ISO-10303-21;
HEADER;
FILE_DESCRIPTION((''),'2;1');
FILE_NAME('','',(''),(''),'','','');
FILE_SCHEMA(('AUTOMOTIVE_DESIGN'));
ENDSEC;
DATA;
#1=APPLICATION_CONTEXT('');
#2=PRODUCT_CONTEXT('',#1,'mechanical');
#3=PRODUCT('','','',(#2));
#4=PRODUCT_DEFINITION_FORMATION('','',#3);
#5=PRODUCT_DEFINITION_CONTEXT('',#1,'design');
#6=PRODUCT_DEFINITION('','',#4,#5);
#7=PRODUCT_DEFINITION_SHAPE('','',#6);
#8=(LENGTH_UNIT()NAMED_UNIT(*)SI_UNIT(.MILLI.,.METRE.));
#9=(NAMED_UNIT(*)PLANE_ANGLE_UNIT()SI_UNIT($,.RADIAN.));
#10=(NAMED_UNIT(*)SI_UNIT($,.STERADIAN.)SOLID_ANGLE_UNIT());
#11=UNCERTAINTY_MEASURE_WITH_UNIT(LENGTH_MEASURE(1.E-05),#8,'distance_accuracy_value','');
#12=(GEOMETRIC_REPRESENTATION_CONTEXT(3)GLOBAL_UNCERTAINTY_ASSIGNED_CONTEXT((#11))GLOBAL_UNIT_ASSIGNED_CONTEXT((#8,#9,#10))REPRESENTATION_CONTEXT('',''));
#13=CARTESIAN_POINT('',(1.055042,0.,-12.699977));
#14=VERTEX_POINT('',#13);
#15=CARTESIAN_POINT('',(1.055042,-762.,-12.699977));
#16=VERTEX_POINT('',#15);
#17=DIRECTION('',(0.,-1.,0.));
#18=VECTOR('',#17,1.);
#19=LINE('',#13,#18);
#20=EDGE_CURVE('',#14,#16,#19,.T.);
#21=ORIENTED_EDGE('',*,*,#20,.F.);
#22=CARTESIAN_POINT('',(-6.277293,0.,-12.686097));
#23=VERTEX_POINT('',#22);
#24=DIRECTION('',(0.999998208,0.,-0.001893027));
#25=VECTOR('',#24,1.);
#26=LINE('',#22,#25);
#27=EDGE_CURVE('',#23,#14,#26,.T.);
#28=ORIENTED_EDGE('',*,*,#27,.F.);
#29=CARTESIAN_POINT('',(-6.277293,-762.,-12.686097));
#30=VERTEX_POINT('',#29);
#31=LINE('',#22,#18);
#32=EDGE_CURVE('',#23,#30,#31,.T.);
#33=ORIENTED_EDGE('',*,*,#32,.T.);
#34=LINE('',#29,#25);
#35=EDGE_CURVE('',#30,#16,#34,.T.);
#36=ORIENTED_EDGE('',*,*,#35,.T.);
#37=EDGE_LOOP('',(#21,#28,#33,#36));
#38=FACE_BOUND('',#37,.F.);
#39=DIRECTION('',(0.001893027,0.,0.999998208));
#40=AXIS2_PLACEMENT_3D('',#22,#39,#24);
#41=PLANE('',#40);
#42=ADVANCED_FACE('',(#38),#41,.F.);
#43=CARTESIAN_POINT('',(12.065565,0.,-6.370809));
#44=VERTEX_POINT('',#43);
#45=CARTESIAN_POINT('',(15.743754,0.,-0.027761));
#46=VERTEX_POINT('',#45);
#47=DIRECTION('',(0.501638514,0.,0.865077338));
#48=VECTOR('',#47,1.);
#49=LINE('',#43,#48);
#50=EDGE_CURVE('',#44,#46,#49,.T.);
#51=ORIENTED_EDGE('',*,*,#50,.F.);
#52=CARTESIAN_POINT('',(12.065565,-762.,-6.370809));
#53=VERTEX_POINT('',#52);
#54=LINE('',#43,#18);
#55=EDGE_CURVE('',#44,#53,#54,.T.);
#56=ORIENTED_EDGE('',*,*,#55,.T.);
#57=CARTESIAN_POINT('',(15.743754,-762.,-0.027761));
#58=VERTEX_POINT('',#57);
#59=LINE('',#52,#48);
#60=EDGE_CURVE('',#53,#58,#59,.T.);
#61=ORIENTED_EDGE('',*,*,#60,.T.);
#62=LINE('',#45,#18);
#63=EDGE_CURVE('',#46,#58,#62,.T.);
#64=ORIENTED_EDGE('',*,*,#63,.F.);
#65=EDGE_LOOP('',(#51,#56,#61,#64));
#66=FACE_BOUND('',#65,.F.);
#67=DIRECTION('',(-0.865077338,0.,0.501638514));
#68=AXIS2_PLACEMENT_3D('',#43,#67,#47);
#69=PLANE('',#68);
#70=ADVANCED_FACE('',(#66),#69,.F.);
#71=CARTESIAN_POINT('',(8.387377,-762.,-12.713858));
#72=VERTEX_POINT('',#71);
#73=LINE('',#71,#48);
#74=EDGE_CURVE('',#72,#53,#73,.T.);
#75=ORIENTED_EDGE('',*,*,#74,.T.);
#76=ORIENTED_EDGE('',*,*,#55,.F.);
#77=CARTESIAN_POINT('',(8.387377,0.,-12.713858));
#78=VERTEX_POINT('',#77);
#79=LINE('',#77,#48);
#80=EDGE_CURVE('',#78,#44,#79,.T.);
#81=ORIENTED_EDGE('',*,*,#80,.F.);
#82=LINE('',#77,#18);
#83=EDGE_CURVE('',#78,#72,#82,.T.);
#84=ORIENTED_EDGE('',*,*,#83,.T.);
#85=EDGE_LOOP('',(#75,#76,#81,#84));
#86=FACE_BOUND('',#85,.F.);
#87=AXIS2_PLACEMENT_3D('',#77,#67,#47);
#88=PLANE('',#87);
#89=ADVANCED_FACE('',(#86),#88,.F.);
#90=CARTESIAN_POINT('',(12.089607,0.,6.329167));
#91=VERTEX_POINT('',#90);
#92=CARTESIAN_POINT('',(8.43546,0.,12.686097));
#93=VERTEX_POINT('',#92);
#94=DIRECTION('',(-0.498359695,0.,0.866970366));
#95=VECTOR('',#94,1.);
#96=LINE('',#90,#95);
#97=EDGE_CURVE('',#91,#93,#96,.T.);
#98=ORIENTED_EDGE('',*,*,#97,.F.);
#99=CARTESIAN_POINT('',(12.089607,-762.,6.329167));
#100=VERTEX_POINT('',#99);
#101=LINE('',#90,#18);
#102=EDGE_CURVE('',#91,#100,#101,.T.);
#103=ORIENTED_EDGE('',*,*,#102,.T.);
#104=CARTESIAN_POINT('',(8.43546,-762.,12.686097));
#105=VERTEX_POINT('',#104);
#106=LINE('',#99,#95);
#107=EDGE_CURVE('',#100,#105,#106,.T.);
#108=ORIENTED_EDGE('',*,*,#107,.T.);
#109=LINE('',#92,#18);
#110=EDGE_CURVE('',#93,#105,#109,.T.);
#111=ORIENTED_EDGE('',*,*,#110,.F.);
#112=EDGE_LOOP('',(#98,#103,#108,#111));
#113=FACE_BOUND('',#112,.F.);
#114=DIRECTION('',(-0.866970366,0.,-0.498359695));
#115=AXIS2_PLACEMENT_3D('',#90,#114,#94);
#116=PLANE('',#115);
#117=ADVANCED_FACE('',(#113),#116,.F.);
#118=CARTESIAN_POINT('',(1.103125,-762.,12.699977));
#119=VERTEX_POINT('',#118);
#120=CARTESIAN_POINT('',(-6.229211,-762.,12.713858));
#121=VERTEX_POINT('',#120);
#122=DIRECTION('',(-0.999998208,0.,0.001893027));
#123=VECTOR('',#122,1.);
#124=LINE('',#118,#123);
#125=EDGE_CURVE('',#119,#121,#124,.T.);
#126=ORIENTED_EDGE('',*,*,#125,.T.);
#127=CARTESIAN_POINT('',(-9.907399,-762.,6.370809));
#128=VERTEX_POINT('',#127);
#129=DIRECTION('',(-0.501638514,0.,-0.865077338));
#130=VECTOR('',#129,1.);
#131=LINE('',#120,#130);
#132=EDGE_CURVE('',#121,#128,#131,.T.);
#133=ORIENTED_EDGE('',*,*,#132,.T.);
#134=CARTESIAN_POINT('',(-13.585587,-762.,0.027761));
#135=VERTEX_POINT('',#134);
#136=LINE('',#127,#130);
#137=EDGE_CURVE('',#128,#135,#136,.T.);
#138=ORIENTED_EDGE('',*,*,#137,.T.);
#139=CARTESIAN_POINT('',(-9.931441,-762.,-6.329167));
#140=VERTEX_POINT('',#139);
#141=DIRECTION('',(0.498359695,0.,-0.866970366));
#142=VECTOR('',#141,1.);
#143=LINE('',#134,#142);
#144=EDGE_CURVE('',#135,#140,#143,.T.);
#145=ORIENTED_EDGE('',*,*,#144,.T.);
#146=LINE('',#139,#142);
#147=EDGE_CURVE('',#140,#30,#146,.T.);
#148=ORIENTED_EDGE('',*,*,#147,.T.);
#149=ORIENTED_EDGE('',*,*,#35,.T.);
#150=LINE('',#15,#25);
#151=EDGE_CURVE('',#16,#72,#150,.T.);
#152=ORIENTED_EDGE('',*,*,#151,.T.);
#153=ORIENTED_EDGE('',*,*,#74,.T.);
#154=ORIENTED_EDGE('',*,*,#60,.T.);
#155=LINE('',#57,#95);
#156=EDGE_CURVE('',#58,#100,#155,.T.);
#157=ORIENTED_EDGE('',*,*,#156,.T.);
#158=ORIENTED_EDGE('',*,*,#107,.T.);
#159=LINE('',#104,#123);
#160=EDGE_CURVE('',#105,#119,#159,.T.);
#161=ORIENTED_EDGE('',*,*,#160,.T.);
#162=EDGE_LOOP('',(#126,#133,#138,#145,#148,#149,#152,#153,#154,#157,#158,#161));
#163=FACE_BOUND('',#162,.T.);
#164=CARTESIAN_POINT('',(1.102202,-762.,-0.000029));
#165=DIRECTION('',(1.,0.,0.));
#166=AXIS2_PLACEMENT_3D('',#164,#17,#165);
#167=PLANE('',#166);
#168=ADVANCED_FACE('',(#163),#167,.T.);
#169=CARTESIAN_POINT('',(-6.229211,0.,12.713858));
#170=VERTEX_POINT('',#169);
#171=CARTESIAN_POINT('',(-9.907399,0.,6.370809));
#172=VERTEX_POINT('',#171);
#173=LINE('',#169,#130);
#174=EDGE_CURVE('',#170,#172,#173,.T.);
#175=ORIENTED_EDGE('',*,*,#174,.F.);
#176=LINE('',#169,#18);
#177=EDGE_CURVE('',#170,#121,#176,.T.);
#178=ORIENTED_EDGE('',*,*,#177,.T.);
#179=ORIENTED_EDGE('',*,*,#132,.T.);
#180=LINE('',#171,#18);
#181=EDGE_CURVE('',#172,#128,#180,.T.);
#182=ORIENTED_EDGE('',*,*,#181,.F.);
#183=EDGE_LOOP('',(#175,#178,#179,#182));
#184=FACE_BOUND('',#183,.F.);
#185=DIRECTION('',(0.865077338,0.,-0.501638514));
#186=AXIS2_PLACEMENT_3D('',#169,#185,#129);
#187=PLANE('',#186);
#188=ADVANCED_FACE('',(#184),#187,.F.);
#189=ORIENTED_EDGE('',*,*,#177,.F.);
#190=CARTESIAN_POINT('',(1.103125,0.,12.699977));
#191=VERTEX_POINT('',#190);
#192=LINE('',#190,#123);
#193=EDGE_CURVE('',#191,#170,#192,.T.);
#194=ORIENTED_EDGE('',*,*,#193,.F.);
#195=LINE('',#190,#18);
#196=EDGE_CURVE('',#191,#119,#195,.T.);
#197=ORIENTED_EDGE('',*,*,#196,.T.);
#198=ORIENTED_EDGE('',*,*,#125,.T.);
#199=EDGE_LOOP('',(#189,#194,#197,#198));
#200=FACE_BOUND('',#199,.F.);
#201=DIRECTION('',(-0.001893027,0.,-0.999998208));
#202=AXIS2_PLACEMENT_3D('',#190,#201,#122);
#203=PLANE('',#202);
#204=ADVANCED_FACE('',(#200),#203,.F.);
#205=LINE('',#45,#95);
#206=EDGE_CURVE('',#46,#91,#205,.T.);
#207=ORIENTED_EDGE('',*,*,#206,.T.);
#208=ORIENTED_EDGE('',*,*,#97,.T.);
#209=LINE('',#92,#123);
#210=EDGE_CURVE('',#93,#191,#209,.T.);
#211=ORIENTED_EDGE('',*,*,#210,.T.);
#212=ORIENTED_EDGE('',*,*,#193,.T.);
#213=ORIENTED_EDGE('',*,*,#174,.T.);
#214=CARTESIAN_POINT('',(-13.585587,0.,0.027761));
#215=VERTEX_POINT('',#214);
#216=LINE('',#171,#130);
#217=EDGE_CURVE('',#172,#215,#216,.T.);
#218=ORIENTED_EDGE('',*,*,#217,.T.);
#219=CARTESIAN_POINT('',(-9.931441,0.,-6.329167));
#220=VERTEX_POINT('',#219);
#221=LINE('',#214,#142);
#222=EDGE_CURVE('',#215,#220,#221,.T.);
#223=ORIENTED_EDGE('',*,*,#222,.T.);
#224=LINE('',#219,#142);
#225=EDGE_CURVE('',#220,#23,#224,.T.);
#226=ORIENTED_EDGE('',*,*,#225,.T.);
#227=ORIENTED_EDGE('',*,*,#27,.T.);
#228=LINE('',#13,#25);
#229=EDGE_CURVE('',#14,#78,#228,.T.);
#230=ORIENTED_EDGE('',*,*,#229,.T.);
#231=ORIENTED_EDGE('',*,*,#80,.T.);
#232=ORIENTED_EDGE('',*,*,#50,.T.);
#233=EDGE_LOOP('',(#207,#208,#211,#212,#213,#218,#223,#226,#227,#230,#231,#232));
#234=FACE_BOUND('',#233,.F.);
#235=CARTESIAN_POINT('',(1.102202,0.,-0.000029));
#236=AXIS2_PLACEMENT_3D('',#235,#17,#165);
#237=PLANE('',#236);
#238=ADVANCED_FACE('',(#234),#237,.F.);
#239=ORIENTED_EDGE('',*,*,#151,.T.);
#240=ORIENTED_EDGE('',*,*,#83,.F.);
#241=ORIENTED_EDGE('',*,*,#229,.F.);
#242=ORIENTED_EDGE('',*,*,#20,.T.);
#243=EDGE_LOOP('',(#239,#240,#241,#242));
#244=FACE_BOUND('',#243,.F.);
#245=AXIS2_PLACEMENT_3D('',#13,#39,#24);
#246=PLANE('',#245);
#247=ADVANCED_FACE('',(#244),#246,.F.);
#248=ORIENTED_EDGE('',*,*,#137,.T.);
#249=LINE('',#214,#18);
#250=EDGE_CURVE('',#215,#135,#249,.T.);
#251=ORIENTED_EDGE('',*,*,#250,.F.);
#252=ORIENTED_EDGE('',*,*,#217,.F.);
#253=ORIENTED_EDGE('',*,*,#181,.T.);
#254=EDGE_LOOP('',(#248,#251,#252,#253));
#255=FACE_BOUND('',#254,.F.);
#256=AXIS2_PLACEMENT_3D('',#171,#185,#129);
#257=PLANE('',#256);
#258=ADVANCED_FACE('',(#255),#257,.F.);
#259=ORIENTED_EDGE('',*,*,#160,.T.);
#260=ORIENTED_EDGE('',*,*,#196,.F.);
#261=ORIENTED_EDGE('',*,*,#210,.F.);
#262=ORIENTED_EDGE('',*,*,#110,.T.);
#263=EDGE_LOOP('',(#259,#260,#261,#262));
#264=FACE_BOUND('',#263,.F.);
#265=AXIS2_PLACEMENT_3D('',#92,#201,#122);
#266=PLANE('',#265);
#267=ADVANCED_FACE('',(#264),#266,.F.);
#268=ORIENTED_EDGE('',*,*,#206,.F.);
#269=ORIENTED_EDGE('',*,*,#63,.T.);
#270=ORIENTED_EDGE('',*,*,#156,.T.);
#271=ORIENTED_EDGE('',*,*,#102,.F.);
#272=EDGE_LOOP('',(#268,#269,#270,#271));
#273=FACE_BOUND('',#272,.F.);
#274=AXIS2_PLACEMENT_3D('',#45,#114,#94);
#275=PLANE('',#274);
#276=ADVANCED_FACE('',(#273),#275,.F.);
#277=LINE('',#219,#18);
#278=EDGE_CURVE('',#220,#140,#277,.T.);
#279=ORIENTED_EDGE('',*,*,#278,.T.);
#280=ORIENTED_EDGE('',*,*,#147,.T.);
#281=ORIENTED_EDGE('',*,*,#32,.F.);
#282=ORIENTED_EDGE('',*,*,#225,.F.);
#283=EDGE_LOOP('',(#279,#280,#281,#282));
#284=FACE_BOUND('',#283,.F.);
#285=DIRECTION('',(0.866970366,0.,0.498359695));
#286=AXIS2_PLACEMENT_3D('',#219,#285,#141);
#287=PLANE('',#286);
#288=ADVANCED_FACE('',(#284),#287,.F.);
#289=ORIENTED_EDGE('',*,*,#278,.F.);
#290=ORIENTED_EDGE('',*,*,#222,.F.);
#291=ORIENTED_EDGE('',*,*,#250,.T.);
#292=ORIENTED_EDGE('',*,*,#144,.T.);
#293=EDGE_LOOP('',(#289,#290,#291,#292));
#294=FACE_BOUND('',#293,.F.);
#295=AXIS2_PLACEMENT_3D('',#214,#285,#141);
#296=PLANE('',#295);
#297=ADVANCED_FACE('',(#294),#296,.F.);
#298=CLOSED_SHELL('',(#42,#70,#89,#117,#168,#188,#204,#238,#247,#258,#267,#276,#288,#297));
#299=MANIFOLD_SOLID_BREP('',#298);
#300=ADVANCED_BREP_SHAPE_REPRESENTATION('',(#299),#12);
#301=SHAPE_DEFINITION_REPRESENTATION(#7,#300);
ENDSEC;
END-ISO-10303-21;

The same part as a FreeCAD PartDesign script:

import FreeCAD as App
import Part
import Sketcher
from FreeCAD import Vector
Q = App.Units.Quantity

doc = App.newDocument("Part")
body = doc.addObject("PartDesign::Body", "Body")

# Sketch on XZ plane
sketch1 = doc.addObject("Sketcher::SketchObject", "Sketch")
body.addObject(sketch1)
sketch1.AttachmentSupport = (doc.XZ_Plane, [""])
sketch1.MapMode = "FlatFace"
sketch1.addGeometry(Part.LineSegment(Vector(-10, -6, 0), Vector(-6, -13, 0)), False)
sketch1.addGeometry(Part.LineSegment(Vector(-6, -13, 0), Vector(1, -13, 0)), False)
sketch1.addGeometry(Part.LineSegment(Vector(1, -13, 0), Vector(8, -13, 0)), False)
sketch1.addGeometry(Part.LineSegment(Vector(8, -13, 0), Vector(12, -6, 0)), False)
sketch1.addGeometry(Part.LineSegment(Vector(12, -6, 0), Vector(16, 0, 0)), False)
sketch1.addGeometry(Part.LineSegment(Vector(16, 0, 0), Vector(12, 6, 0)), False)
sketch1.addGeometry(Part.LineSegment(Vector(12, 6, 0), Vector(8, 13, 0)), False)
sketch1.addGeometry(Part.LineSegment(Vector(8, 13, 0), Vector(1, 13, 0)), False)
sketch1.addGeometry(Part.LineSegment(Vector(1, 13, 0), Vector(-6, 13, 0)), False)
sketch1.addGeometry(Part.LineSegment(Vector(-6, 13, 0), Vector(-10, 6, 0)), False)
sketch1.addGeometry(Part.LineSegment(Vector(-10, 6, 0), Vector(-14, 0, 0)), False)
sketch1.addGeometry(Part.LineSegment(Vector(-14, 0, 0), Vector(-10, -6, 0)), False)
sketch1.addConstraint(Sketcher.Constraint("Coincident", 0, 2, 1, 1))
sketch1.addConstraint(Sketcher.Constraint("Coincident", 1, 2, 2, 1))
sketch1.addConstraint(Sketcher.Constraint("Coincident", 2, 2, 3, 1))
sketch1.addConstraint(Sketcher.Constraint("Coincident", 3, 2, 4, 1))
sketch1.addConstraint(Sketcher.Constraint("Coincident", 4, 2, 5, 1))
sketch1.addConstraint(Sketcher.Constraint("Coincident", 5, 2, 6, 1))
sketch1.addConstraint(Sketcher.Constraint("Coincident", 6, 2, 7, 1))
sketch1.addConstraint(Sketcher.Constraint("Coincident", 7, 2, 8, 1))
sketch1.addConstraint(Sketcher.Constraint("Coincident", 8, 2, 9, 1))
sketch1.addConstraint(Sketcher.Constraint("Coincident", 9, 2, 10, 1))
sketch1.addConstraint(Sketcher.Constraint("Coincident", 10, 2, 11, 1))
sketch1.addConstraint(Sketcher.Constraint("Coincident", 11, 2, 0, 1))
sketch1.addConstraint(Sketcher.Constraint("Parallel", 1, 2))
sketch1.addConstraint(Sketcher.Constraint("Parallel", 3, 4))
sketch1.addConstraint(Sketcher.Constraint("Parallel", 0, 5))
sketch1.addConstraint(Sketcher.Constraint("Parallel", 5, 6))
sketch1.addConstraint(Sketcher.Constraint("Parallel", 2, 7))
sketch1.addConstraint(Sketcher.Constraint("Parallel", 7, 8))
sketch1.addConstraint(Sketcher.Constraint("Parallel", 4, 9))
sketch1.addConstraint(Sketcher.Constraint("Parallel", 9, 10))
sketch1.addConstraint(Sketcher.Constraint("Parallel", 6, 11))
sketch1.addConstraint(Sketcher.Constraint("Equal", 0, 1))
sketch1.addConstraint(Sketcher.Constraint("Equal", 1, 2))
sketch1.addConstraint(Sketcher.Constraint("Equal", 2, 3))
sketch1.addConstraint(Sketcher.Constraint("Equal", 3, 4))
sketch1.addConstraint(Sketcher.Constraint("Equal", 4, 5))
sketch1.addConstraint(Sketcher.Constraint("Equal", 5, 6))
sketch1.addConstraint(Sketcher.Constraint("Equal", 6, 7))
sketch1.addConstraint(Sketcher.Constraint("Equal", 7, 8))
sketch1.addConstraint(Sketcher.Constraint("Equal", 8, 9))
sketch1.addConstraint(Sketcher.Constraint("DistanceX", 9, 2, -1, 1, Q("9.907399 mm")))
sketch1.addConstraint(Sketcher.Constraint("DistanceX", 0, 2, 5, 2, Q("18.366901 mm")))
sketch1.addConstraint(Sketcher.Constraint("Distance", 0, Q("7.332349 mm")))
sketch1.addConstraint(Sketcher.Constraint("DistanceX", -1, 1, 1, 2, Q("1.055042 mm")))
sketch1.addConstraint(Sketcher.Constraint("DistanceY", 3, 2, -1, 1, Q("6.370809 mm")))
sketch1.addConstraint(Sketcher.Constraint("DistanceY", -1, 1, 9, 2, Q("6.370809 mm")))
pad1 = doc.addObject("PartDesign::Pad", "Pad")
body.addObject(pad1)
pad1.Profile = sketch1
pad1.Length = Q("30 in")

doc.recompute()
